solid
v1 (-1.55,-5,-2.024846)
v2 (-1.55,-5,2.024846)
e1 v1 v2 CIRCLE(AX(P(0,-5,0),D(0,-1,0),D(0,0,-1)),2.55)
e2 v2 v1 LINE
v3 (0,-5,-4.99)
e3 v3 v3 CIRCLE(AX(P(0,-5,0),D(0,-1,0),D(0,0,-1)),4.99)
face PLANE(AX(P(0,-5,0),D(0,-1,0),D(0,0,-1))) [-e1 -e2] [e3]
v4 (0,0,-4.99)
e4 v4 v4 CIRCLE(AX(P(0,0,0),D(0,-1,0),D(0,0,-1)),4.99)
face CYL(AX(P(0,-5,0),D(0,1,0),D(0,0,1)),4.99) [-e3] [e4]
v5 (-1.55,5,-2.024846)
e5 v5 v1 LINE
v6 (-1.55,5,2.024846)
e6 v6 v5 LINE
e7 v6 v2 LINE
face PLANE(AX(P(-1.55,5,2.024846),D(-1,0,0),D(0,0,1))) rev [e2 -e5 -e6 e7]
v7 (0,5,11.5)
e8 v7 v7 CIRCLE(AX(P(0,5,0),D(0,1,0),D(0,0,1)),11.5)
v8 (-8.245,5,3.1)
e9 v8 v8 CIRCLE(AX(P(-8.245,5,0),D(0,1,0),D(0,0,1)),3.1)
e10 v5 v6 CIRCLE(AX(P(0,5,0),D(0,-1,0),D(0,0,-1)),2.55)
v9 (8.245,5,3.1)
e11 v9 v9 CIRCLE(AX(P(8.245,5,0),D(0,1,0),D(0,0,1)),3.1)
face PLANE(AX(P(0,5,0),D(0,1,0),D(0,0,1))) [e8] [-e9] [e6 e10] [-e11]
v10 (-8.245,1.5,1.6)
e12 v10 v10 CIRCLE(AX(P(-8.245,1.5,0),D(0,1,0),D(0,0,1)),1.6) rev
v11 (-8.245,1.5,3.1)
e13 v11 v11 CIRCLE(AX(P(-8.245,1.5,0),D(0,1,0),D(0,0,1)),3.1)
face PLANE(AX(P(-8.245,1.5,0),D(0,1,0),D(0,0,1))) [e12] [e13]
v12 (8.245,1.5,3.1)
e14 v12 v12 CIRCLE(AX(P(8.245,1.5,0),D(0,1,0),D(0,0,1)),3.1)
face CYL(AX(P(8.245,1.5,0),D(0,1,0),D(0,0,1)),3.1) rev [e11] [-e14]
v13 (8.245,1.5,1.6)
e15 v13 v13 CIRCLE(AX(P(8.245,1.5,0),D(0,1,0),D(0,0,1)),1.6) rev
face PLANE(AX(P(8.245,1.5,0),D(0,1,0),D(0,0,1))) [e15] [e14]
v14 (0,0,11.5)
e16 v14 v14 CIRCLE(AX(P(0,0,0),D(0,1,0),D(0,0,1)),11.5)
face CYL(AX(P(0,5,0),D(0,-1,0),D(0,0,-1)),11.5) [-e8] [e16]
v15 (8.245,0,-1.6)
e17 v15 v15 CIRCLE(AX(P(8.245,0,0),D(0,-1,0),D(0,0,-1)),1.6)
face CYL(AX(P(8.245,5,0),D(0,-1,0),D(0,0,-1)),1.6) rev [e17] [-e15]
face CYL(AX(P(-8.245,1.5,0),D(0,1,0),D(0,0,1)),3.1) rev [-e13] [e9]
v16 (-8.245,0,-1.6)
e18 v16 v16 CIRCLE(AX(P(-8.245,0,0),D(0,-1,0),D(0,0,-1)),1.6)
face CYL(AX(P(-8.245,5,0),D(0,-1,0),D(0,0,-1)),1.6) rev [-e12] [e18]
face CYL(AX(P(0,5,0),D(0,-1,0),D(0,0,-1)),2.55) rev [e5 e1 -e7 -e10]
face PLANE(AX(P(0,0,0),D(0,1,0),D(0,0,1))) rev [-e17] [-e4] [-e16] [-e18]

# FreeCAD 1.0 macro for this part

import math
import FreeCAD as App
import Part
import Sketcher
from FreeCAD import Vector
Q = App.Units.Quantity

doc = App.newDocument("Part")
params = doc.addObject("Spreadsheet::Sheet", "Params")
for row, (alias, value) in enumerate([
    ("sketch1_diameter", "23 mm"),
    ("pad1_length", "5 mm"),
    ("sketch2_diameter", "9.98 mm"),
    ("pad2_length", "5 mm"),
    ("sketch3_diameter", "3.2 mm"),
    ("sketch4_radius", "2.55 mm"),
    ("sketch5_diameter", "6.2 mm"),
    ("pocket3_length", "3.5 mm"),
], start=1):
    params.set(f"A{row}", alias)
    params.set(f"B{row}", "=" + value)
    params.setAlias(f"B{row}", alias)

body = doc.addObject("PartDesign::Body", "Body")

# Sketch on XZ plane
sketch1 = body.newObject("Sketcher::SketchObject", "Sketch")
sketch1.AttachmentSupport = (doc.getObject("XZ_Plane"), [""])
sketch1.MapMode = "FlatFace"
sketch1.addGeometry(Part.Circle(Vector(0, 0, 0), Vector(0, 0, 1), 12), False)
sketch1.addConstraint([
    Sketcher.Constraint("Coincident", 0, 3, -1, 1),
    Sketcher.Constraint("Diameter", 0, Q("23 mm")),
])
sketch1.setExpression("Constraints[1]", "Params.sketch1_diameter")
pad1 = body.newObject("PartDesign::Pad", "Pad")
pad1.Profile = sketch1
pad1.setExpression("Length", "Params.pad1_length")
pad1.Reversed = True

# Sketch on XZ plane
sketch2 = body.newObject("Sketcher::SketchObject", "Sketch001")
sketch2.AttachmentSupport = (doc.getObject("XZ_Plane"), [""])
sketch2.MapMode = "FlatFace"
sketch2.addGeometry(Part.Circle(Vector(0, 0, 0), Vector(0, 0, 1), 5), False)
sketch2.addConstraint([
    Sketcher.Constraint("Coincident", 0, 3, -1, 1),
    Sketcher.Constraint("Diameter", 0, Q("9.98 mm")),
])
sketch2.setExpression("Constraints[1]", "Params.sketch2_diameter")
pad2 = body.newObject("PartDesign::Pad", "Pad001")
pad2.Profile = sketch2
pad2.setExpression("Length", "Params.pad2_length")

# Sketch on XZ plane
sketch3 = body.newObject("Sketcher::SketchObject", "Sketch002")
sketch3.AttachmentSupport = (doc.getObject("XZ_Plane"), [""])
sketch3.MapMode = "FlatFace"
sketch3.addGeometry([
    Part.Circle(Vector(-8.2, 0, 0), Vector(0, 0, 1), 1.6),
    Part.Circle(Vector(8.2, 0, 0), Vector(0, 0, 1), 1.6),
], False)
sketch3.addConstraint([
    Sketcher.Constraint("Equal", 0, 1),
    Sketcher.Constraint("Symmetric", 0, 3, 1, 3, -1, 1),
    Sketcher.Constraint("PointOnObject", 0, 3, -1),
    Sketcher.Constraint("Diameter", 0, Q("3.2 mm")),
    Sketcher.Constraint("DistanceX", 0, 3, 1, 3, Q("16.49 mm")),
])
sketch3.setExpression("Constraints[3]", "Params.sketch3_diameter")
pocket1 = body.newObject("PartDesign::Pocket", "Pocket")
pocket1.Profile = sketch3
pocket1.Type = "ThroughAll"

# Sketch on XZ plane
sketch4 = body.newObject("Sketcher::SketchObject", "Sketch003")
sketch4.AttachmentSupport = (doc.getObject("XZ_Plane"), [""])
sketch4.MapMode = "FlatFace"
sketch4.AttachmentOffset = App.Placement(Vector(0, 0, 5), App.Rotation())
sketch4.addGeometry([
    Part.LineSegment(Vector(-1.6, 2, 0), Vector(-1.6, -2, 0)),
    Part.ArcOfCircle(Part.Circle(Vector(0, 0, 0), Vector(0, 0, 1), 2.5), math.radians(-127), math.radians(127)),
], False)
sketch4.addConstraint([
    Sketcher.Constraint("Coincident", 0, 1, 1, 2),
    Sketcher.Constraint("Coincident", 1, 1, 0, 2),
    Sketcher.Constraint("Vertical", 0),
    Sketcher.Constraint("Coincident", 1, 3, -1, 1),
    Sketcher.Constraint("Radius", 1, Q("2.55 mm")),
    Sketcher.Constraint("DistanceX", 0, 1, -1, 1, Q("1.55 mm")),
])
sketch4.setExpression("Constraints[4]", "Params.sketch4_radius")
pocket2 = body.newObject("PartDesign::Pocket", "Pocket001")
pocket2.Profile = sketch4
pocket2.Type = "ThroughAll"

# Sketch on XZ plane
sketch5 = body.newObject("Sketcher::SketchObject", "Sketch004")
sketch5.AttachmentSupport = (doc.getObject("XZ_Plane"), [""])
sketch5.MapMode = "FlatFace"
sketch5.AttachmentOffset = App.Placement(Vector(0, 0, -5), App.Rotation())
sketch5.addGeometry([
    Part.Circle(Vector(-8.2, 0, 0), Vector(0, 0, 1), 3.1),
    Part.Circle(Vector(8.2, 0, 0), Vector(0, 0, 1), 3.1),
], False)
sketch5.addConstraint([
    Sketcher.Constraint("Equal", 0, 1),
    Sketcher.Constraint("Symmetric", 0, 3, 1, 3, -1, 1),
    Sketcher.Constraint("PointOnObject", 0, 3, -1),
    Sketcher.Constraint("Diameter", 0, Q("6.2 mm")),
    Sketcher.Constraint("DistanceX", 0, 3, 1, 3, Q("16.49 mm")),
])
sketch5.setExpression("Constraints[3]", "Params.sketch5_diameter")
pocket3 = body.newObject("PartDesign::Pocket", "Pocket002")
pocket3.Profile = sketch5
pocket3.setExpression("Length", "Params.pocket3_length")
pocket3.Reversed = True

doc.recompute()
